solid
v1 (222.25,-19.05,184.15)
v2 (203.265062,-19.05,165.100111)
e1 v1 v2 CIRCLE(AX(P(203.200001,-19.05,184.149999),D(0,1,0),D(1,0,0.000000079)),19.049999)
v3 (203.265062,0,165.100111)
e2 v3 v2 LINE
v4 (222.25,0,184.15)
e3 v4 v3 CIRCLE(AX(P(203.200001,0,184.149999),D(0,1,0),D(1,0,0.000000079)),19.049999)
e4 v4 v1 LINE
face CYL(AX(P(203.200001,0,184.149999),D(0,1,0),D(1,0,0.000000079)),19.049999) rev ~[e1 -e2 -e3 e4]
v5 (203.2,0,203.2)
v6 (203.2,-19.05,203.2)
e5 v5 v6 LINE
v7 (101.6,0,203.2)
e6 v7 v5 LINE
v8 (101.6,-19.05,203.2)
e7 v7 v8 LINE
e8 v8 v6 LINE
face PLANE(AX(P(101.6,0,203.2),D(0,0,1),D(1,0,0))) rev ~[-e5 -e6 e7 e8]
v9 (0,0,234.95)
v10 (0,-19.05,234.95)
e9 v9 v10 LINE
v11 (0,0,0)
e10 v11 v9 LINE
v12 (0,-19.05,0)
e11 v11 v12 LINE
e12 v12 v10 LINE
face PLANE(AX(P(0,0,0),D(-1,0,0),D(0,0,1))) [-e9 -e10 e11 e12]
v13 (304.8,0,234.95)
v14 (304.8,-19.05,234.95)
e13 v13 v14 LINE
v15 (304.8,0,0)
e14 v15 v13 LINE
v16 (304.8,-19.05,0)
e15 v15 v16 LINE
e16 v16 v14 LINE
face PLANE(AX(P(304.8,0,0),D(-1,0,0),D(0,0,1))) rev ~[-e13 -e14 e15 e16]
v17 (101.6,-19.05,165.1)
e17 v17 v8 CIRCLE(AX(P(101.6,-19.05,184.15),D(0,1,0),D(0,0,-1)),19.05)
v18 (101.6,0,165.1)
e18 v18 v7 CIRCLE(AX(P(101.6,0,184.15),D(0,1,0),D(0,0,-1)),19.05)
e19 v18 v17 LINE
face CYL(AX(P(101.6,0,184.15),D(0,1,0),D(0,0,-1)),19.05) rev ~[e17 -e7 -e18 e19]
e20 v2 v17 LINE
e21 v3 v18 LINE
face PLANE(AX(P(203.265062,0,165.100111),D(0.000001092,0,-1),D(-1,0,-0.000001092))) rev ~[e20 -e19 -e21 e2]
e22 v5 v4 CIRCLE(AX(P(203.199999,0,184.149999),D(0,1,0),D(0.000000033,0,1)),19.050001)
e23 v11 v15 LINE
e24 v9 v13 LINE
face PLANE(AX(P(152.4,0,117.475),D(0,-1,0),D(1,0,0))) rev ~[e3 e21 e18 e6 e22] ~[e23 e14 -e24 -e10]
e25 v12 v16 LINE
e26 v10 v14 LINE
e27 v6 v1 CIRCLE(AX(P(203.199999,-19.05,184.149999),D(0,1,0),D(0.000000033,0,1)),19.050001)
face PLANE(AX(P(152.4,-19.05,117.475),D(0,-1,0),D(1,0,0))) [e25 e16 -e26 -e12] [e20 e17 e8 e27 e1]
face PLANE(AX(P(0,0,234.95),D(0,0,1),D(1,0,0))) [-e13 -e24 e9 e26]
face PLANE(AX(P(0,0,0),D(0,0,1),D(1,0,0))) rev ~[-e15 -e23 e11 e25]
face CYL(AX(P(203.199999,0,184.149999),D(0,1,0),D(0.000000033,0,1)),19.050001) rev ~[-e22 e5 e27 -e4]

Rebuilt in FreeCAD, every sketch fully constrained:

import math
import FreeCAD as App
import Part
import Sketcher
Q = App.Units.Quantity


def add_polygon(sketch, points):
    """Adds a closed chain of lines whose ends are joined by coincident constraints."""
    first, n = sketch.GeometryCount, len(points)
    for a, b in zip(points, points[1:] + points[:1]):
        sketch.addGeometry(Part.LineSegment(App.Vector(*a, 0), App.Vector(*b, 0)), False)
    for i in range(n):
        sketch.addConstraint(Sketcher.Constraint("Coincident", first + i, 2, first + (i + 1) % n, 1))

doc = App.newDocument("Part")
params = doc.addObject("Spreadsheet::Sheet", "Params")
for row, (alias, value) in enumerate([
    ("sketch1_width", "12 in"),
    ("sketch1_width2", "4 in"),
    ("sketch1_radius", "0.75 in"),
    ("sketch1_radius2", "0.75 in"),
    ("pad1_length", "0.75 in"),
], start=1):
    params.set(f"A{row}", alias)
    params.set(f"B{row}", "=" + value)
    params.setAlias(f"B{row}", alias)

body = doc.addObject("PartDesign::Body", "Body")

# Sketch on XZ plane
sketch1 = body.newObject("Sketcher::SketchObject", "Sketch")
sketch1.AttachmentSupport = (doc.getObject("XZ_Plane"), [""])
sketch1.MapMode = "FlatFace"
add_polygon(sketch1, [(0, 234.95), (0, 0), (304.8, 0), (304.8, 234.95)])  # lines 0-3
sketch1.addGeometry(Part.LineSegment(App.Vector(203.265062, 165.100111, 0), App.Vector(101.6, 165.1, 0)), False)  # 4
sketch1.addGeometry(Part.ArcOfCircle(Part.Circle(App.Vector(101.6, 184.15, 0), App.Vector(0, 0, 1), 19.05), math.radians(90), math.radians(270)), False)  # 5
sketch1.addGeometry(Part.LineSegment(App.Vector(101.6, 203.2, 0), App.Vector(203.2, 203.2, 0)), False)  # 6
sketch1.addGeometry(Part.ArcOfCircle(Part.Circle(App.Vector(203.199999, 184.149999, 0), App.Vector(0, 0, 1), 19.050001), math.radians(0.000002), math.radians(89.999998)), False)  # 7
sketch1.addGeometry(Part.ArcOfCircle(Part.Circle(App.Vector(203.200001, 184.149999, 0), App.Vector(0, 0, 1), 19.049999), math.radians(-89.80432), math.radians(0.000005)), False)  # 8
sketch1.addConstraint(Sketcher.Constraint("Coincident", 4, 2, 5, 2))
sketch1.addConstraint(Sketcher.Constraint("Coincident", 5, 1, 6, 1))
sketch1.addConstraint(Sketcher.Constraint("Coincident", 6, 2, 7, 2))
sketch1.addConstraint(Sketcher.Constraint("Coincident", 7, 1, 8, 2))
sketch1.addConstraint(Sketcher.Constraint("Coincident", 8, 1, 4, 1))
sketch1.addConstraint(Sketcher.Constraint("Vertical", 0))
sketch1.addConstraint(Sketcher.Constraint("Horizontal", 1))
sketch1.addConstraint(Sketcher.Constraint("Vertical", 2))
sketch1.addConstraint(Sketcher.Constraint("Horizontal", 3))
sketch1.addConstraint(Sketcher.Constraint("Horizontal", 6))
sketch1.addConstraint(Sketcher.Constraint("Coincident", 0, 2, -1, 1))
sketch1.addConstraint(Sketcher.Constraint("Coincident", 8, 3, 7, 3))
sketch1.addConstraint(Sketcher.Constraint("DistanceX", 1, 1, 1, 2, Q("12 in")))
sketch1.addConstraint(Sketcher.Constraint("DistanceX", 6, 1, 6, 2, Q("4 in")))
sketch1.addConstraint(Sketcher.Constraint("Radius", 5, Q("0.75 in")))
sketch1.addConstraint(Sketcher.Constraint("Radius", 7, Q("0.75 in")))
sketch1.addConstraint(Sketcher.Constraint("DistanceX", -1, 1, 5, 3, Q("4 in")))
sketch1.addConstraint(Sketcher.Constraint("DistanceX", -1, 1, 7, 3, Q("8 in")))
sketch1.addConstraint(Sketcher.Constraint("DistanceX", -1, 1, 4, 2, Q("4 in")))
sketch1.addConstraint(Sketcher.Constraint("DistanceX", -1, 1, 5, 1, Q("4 in")))
sketch1.addConstraint(Sketcher.Constraint("DistanceY", -1, 1, 5, 1, Q("8 in")))
sketch1.addConstraint(Sketcher.Constraint("DistanceY", 8, 3, 2, 2, Q("2.0000001 in")))
sketch1.addConstraint(Sketcher.Constraint("DistanceY", 7, 1, 2, 2, Q("2 in")))
sketch1.addConstraint(Sketcher.Constraint("DistanceY", -1, 1, 8, 1, Q("165.100111 mm")))
sketch1.setExpression("Constraints[16]", "Params.sketch1_width")
sketch1.setExpression("Constraints[17]", "Params.sketch1_width2")
sketch1.setExpression("Constraints[18]", "Params.sketch1_radius")
sketch1.setExpression("Constraints[19]", "Params.sketch1_radius2")
pad1 = body.newObject("PartDesign::Pad", "Pad")
pad1.Profile = sketch1
pad1.setExpression("Length", "Params.pad1_length")

doc.recompute()
